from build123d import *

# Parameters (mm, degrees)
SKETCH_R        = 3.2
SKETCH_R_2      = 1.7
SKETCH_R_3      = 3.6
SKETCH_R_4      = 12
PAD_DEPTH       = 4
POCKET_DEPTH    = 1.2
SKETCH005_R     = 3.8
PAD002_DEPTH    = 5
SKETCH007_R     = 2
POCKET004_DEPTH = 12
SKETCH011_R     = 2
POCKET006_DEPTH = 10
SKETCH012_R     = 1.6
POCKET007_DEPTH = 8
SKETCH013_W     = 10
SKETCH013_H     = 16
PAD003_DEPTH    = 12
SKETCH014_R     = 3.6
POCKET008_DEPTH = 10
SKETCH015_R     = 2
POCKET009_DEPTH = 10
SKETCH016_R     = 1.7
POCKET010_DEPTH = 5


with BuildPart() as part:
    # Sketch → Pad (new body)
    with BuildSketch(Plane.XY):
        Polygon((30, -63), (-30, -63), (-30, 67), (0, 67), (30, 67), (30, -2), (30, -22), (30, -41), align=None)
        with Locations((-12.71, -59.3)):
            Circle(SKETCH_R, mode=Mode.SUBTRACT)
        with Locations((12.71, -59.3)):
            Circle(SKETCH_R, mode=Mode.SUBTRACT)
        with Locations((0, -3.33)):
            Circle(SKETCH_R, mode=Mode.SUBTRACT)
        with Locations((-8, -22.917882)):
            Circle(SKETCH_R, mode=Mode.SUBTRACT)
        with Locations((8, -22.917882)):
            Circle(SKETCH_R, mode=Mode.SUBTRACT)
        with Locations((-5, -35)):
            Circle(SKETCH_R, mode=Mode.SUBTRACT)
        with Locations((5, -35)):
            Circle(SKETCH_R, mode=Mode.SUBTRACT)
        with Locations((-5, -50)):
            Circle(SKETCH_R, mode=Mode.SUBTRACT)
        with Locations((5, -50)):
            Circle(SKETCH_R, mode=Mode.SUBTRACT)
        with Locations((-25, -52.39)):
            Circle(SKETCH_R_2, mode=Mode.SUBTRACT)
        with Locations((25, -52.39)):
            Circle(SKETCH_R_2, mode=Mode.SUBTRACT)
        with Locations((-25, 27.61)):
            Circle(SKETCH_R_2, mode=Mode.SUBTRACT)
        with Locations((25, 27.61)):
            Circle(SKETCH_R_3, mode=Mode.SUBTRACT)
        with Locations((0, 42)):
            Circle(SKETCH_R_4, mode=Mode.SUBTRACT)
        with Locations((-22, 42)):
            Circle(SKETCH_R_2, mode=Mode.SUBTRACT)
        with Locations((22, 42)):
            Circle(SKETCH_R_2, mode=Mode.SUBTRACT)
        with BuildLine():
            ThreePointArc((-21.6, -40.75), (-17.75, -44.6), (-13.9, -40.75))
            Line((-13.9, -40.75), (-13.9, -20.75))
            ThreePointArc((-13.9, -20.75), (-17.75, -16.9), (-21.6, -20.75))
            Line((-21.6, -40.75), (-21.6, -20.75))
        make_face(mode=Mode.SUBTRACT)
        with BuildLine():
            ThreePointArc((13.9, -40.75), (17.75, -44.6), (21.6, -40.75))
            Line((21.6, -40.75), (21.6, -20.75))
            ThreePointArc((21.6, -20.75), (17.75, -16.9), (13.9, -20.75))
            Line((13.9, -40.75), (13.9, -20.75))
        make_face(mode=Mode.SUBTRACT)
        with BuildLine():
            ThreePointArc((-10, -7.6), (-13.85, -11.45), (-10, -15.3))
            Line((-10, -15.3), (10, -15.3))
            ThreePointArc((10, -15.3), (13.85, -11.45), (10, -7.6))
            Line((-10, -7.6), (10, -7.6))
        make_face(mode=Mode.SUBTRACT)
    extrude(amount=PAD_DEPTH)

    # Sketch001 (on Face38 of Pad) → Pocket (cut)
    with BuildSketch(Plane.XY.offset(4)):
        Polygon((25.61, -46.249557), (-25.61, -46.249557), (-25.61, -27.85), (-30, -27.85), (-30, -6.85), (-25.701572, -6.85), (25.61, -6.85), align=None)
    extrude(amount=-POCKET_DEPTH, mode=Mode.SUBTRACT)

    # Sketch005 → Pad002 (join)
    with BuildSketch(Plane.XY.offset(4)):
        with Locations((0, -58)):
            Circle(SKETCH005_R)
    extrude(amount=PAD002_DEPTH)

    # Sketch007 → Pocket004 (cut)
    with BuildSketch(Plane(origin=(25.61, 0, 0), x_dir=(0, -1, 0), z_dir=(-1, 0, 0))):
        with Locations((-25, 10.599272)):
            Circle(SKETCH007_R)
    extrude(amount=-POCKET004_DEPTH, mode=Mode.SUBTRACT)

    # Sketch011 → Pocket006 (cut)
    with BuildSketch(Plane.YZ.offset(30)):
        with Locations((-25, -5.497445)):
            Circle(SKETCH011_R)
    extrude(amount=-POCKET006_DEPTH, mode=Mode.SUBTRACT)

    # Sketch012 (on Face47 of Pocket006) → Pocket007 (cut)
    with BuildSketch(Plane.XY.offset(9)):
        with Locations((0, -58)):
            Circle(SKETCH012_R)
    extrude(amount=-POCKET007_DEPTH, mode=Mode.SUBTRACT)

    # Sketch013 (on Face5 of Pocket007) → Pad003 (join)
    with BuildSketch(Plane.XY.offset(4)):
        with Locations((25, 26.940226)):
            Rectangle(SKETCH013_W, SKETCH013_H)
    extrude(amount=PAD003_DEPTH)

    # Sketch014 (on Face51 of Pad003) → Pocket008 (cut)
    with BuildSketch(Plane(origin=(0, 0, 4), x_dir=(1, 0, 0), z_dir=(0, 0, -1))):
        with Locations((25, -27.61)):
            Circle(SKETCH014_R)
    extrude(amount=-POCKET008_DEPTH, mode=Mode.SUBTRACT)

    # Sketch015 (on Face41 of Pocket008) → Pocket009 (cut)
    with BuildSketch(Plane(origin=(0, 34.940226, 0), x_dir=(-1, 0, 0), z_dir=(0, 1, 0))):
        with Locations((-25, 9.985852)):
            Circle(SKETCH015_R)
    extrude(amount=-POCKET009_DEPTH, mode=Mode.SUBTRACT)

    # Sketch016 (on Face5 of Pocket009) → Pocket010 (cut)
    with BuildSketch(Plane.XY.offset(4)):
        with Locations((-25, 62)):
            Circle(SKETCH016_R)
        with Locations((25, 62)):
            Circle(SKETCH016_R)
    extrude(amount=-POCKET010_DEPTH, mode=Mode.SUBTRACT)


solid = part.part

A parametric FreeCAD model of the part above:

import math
import FreeCAD as App
import Part
import Sketcher

doc = App.newDocument("Part")
body = doc.addObject("PartDesign::Body", "Body")

sketch1 = body.newObject("Sketcher::SketchObject", "Sketch")
sketch1.AttachmentSupport = (doc.getObject("XY_Plane"), [""])
sketch1.MapMode = "FlatFace"
sketch1.addGeometry(Part.LineSegment(App.Vector(-30, -63, 0), App.Vector(30, -63, 0)), False)
sketch1.addGeometry(Part.LineSegment(App.Vector(30, -63, 0), App.Vector(30, 67, 0)), False)
sketch1.addGeometry(Part.LineSegment(App.Vector(30, 67, 0), App.Vector(-30, 67, 0)), False)
sketch1.addGeometry(Part.LineSegment(App.Vector(-30, 67, 0), App.Vector(-30, -63, 0)), False)
sketch1.addGeometry(Part.Circle(App.Vector(25, -52.39, 0), App.Vector(0, 0, 1), 1.7), False)
sketch1.addGeometry(Part.Circle(App.Vector(12.71, -59.3, 0), App.Vector(0, 0, 1), 3.2), False)
sketch1.addGeometry(Part.Circle(App.Vector(5, -50, 0), App.Vector(0, 0, 1), 3.2), False)
sketch1.addGeometry(Part.Circle(App.Vector(5, -35, 0), App.Vector(0, 0, 1), 3.2), False)
sketch1.addGeometry(Part.LineSegment(App.Vector(13.9, -40.75, 0), App.Vector(13.9, -20.75, 0)), False)
sketch1.addGeometry(Part.ArcOfCircle(Part.Circle(App.Vector(17.75, -20.75, 0), App.Vector(0, 0, 1), 3.85), math.radians(0), math.radians(180)), False)
sketch1.addGeometry(Part.LineSegment(App.Vector(21.6, -20.75, 0), App.Vector(21.6, -40.75, 0)), False)
sketch1.addGeometry(Part.ArcOfCircle(Part.Circle(App.Vector(17.75, -40.75, 0), App.Vector(0, 0, 1), 3.85), math.radians(180), math.radians(360)), False)
sketch1.addGeometry(Part.Circle(App.Vector(8, -22.917882, 0), App.Vector(0, 0, 1), 3.2), False)
sketch1.addGeometry(Part.Circle(App.Vector(-5, -50, 0), App.Vector(0, 0, 1), 3.2), False)
sketch1.addGeometry(Part.Circle(App.Vector(-12.71, -59.3, 0), App.Vector(0, 0, 1), 3.2), False)
sketch1.addGeometry(Part.Circle(App.Vector(-5, -35, 0), App.Vector(0, 0, 1), 3.2), False)
sketch1.addGeometry(Part.Circle(App.Vector(-25, -52.39, 0), App.Vector(0, 0, 1), 1.7), False)
sketch1.addGeometry(Part.Circle(App.Vector(-8, -22.917882, 0), App.Vector(0, 0, 1), 3.2), False)
sketch1.addGeometry(Part.LineSegment(App.Vector(-10, -7.6, 0), App.Vector(10, -7.6, 0)), False)
sketch1.addGeometry(Part.ArcOfCircle(Part.Circle(App.Vector(10, -11.45, 0), App.Vector(0, 0, 1), 3.85), math.radians(-90), math.radians(90)), False)
sketch1.addGeometry(Part.LineSegment(App.Vector(10, -15.3, 0), App.Vector(-10, -15.3, 0)), False)
sketch1.addGeometry(Part.ArcOfCircle(Part.Circle(App.Vector(-10, -11.45, 0), App.Vector(0, 0, 1), 3.85), math.radians(90), math.radians(270)), False)
sketch1.addGeometry(Part.LineSegment(App.Vector(-21.6, -40.75, 0), App.Vector(-21.6, -20.75, 0)), False)
sketch1.addGeometry(Part.ArcOfCircle(Part.Circle(App.Vector(-17.75, -20.75, 0), App.Vector(0, 0, 1), 3.85), math.radians(0), math.radians(180)), False)
sketch1.addGeometry(Part.LineSegment(App.Vector(-13.9, -20.75, 0), App.Vector(-13.9, -40.75, 0)), False)
sketch1.addGeometry(Part.ArcOfCircle(Part.Circle(App.Vector(-17.75, -40.75, 0), App.Vector(0, 0, 1), 3.85), math.radians(180), math.radians(360)), False)
sketch1.addGeometry(Part.Circle(App.Vector(25, 27.61, 0), App.Vector(0, 0, 1), 3.6), False)
sketch1.addGeometry(Part.Circle(App.Vector(22, 42, 0), App.Vector(0, 0, 1), 1.7), False)
sketch1.addGeometry(Part.Circle(App.Vector(0, -3.33, 0), App.Vector(0, 0, 1), 3.2), False)
sketch1.addGeometry(Part.Circle(App.Vector(0, 42, 0), App.Vector(0, 0, 1), 12), False)
sketch1.addGeometry(Part.Circle(App.Vector(-25, 27.61, 0), App.Vector(0, 0, 1), 1.7), False)
sketch1.addGeometry(Part.Circle(App.Vector(-22, 42, 0), App.Vector(0, 0, 1), 1.7), False)
sketch1.addConstraint(Sketcher.Constraint("Coincident", 0, 2, 1, 1))
sketch1.addConstraint(Sketcher.Constraint("Coincident", 1, 2, 2, 1))
sketch1.addConstraint(Sketcher.Constraint("Coincident", 2, 2, 3, 1))
sketch1.addConstraint(Sketcher.Constraint("Coincident", 3, 2, 0, 1))
sketch1.addConstraint(Sketcher.Constraint("Tangent", 8, 2, 9, 2))
sketch1.addConstraint(Sketcher.Constraint("Tangent", 9, 1, 10, 1))
sketch1.addConstraint(Sketcher.Constraint("Tangent", 10, 2, 11, 2))
sketch1.addConstraint(Sketcher.Constraint("Tangent", 11, 1, 8, 1))
sketch1.addConstraint(Sketcher.Constraint("Tangent", 18, 2, 19, 2))
sketch1.addConstraint(Sketcher.Constraint("Tangent", 19, 1, 20, 1))
sketch1.addConstraint(Sketcher.Constraint("Tangent", 20, 2, 21, 2))
sketch1.addConstraint(Sketcher.Constraint("Tangent", 21, 1, 18, 1))
sketch1.addConstraint(Sketcher.Constraint("Tangent", 22, 2, 23, 2))
sketch1.addConstraint(Sketcher.Constraint("Tangent", 23, 1, 24, 1))
sketch1.addConstraint(Sketcher.Constraint("Tangent", 24, 2, 25, 2))
sketch1.addConstraint(Sketcher.Constraint("Tangent", 25, 1, 22, 1))
sketch1.addConstraint(Sketcher.Constraint("Horizontal", 0))
sketch1.addConstraint(Sketcher.Constraint("Vertical", 1))
sketch1.addConstraint(Sketcher.Constraint("Horizontal", 2))
sketch1.addConstraint(Sketcher.Constraint("Vertical", 3))
sketch1.addConstraint(Sketcher.Constraint("Vertical", 8))
sketch1.addConstraint(Sketcher.Constraint("Vertical", 10))
sketch1.addConstraint(Sketcher.Constraint("Horizontal", 18))
sketch1.addConstraint(Sketcher.Constraint("Horizontal", 20))
sketch1.addConstraint(Sketcher.Constraint("Vertical", 22))
sketch1.addConstraint(Sketcher.Constraint("Vertical", 24))
sketch1.addConstraint(Sketcher.Constraint("Equal", 5, 6))
sketch1.addConstraint(Sketcher.Constraint("Equal", 6, 7))
sketch1.addConstraint(Sketcher.Constraint("Equal", 7, 12))
sketch1.addConstraint(Sketcher.Constraint("Equal", 12, 13))
sketch1.addConstraint(Sketcher.Constraint("Equal", 13, 14))
sketch1.addConstraint(Sketcher.Constraint("Equal", 14, 15))
sketch1.addConstraint(Sketcher.Constraint("Equal", 4, 16))
sketch1.addConstraint(Sketcher.Constraint("Equal", 15, 17))
sketch1.addConstraint(Sketcher.Constraint("Equal", 11, 19))
sketch1.addConstraint(Sketcher.Constraint("Equal", 21, 23))
sketch1.addConstraint(Sketcher.Constraint("Equal", 16, 27))
sketch1.addConstraint(Sketcher.Constraint("Equal", 17, 28))
sketch1.addConstraint(Sketcher.Constraint("Equal", 27, 30))
sketch1.addConstraint(Sketcher.Constraint("Equal", 30, 31))
sketch1.addConstraint(Sketcher.Constraint("Symmetric", 6, 3, 13, 3, -2))
sketch1.addConstraint(Sketcher.Constraint("Symmetric", 5, 3, 14, 3, -2))
sketch1.addConstraint(Sketcher.Constraint("Symmetric", 7, 3, 15, 3, -2))
sketch1.addConstraint(Sketcher.Constraint("Symmetric", 4, 3, 16, 3, -2))
sketch1.addConstraint(Sketcher.Constraint("Symmetric", 12, 3, 17, 3, -2))
sketch1.addConstraint(Sketcher.Constraint("Symmetric", 9, 3, 23, 3, -2))
sketch1.addConstraint(Sketcher.Constraint("Symmetric", 26, 3, 30, 3, -2))
sketch1.addConstraint(Sketcher.Constraint("Symmetric", 27, 3, 31, 3, -2))
sketch1.addConstraint(Sketcher.Constraint("PointOnObject", 28, 3, -2))
sketch1.addConstraint(Sketcher.Constraint("PointOnObject", 29, 3, -2))
sketch1.addConstraint(Sketcher.Constraint("Horizontal", 11, 3, 25, 3))
sketch1.addConstraint(Sketcher.Constraint("Horizontal", 27, 3, 29, 3))
sketch1.addConstraint(Sketcher.Constraint("Vertical", 6, 3, 7, 3))
sketch1.addConstraint(Sketcher.Constraint("Vertical", 4, 3, 26, 3))
sketch1.addConstraint(Sketcher.Constraint("Equal", 20, 8))
sketch1.addConstraint(Sketcher.Constraint("Diameter", 29, 24.0))
sketch1.addConstraint(Sketcher.Constraint("Diameter", 4, 3.4))
sketch1.addConstraint(Sketcher.Constraint("Diameter", 5, 6.4))
sketch1.addConstraint(Sketcher.Constraint("Diameter", 26, 7.2))
sketch1.addConstraint(Sketcher.Constraint("DistanceX", 0, 1, 0, 2, 60.0))
sketch1.addConstraint(Sketcher.Constraint("DistanceX", 18, 1, 18, 2, 20.0))
sketch1.addConstraint(Sketcher.Constraint("DistanceY", 1, 1, 1, 2, 130.0))
sketch1.addConstraint(Sketcher.Constraint("Radius", 9, 3.85))
sketch1.addConstraint(Sketcher.Constraint("DistanceX", -1, 1, 4, 3, 25.0))
sketch1.addConstraint(Sketcher.Constraint("DistanceX", -1, 1, 6, 3, 5.0))
sketch1.addConstraint(Sketcher.Constraint("DistanceY", 6, 3, -1, 1, 50.0))
sketch1.addConstraint(Sketcher.Constraint("DistanceY", 7, 3, -1, 1, 35.0))
sketch1.addConstraint(Sketcher.Constraint("DistanceX", -1, 1, 12, 3, 8.0))
sketch1.addConstraint(Sketcher.Constraint("DistanceX", -1, 1, 19, 3, 10.0))
sketch1.addConstraint(Sketcher.Constraint("DistanceX", -1, 1, 27, 3, 22.0))
sketch1.addConstraint(Sketcher.Constraint("DistanceY", -1, 1, 27, 3, 42.0))
sketch1.addConstraint(Sketcher.Constraint("DistanceX", -1, 1, 0, 2, 30.0))
sketch1.addConstraint(Sketcher.Constraint("DistanceY", 0, 2, -1, 1, 63.0))
sketch1.addConstraint(Sketcher.Constraint("DistanceY", 5, 3, -1, 1, 59.3))
sketch1.addConstraint(Sketcher.Constraint("DistanceX", -1, 1, 8, 2, 13.9))
sketch1.addConstraint(Sketcher.Constraint("DistanceY", 18, 2, -1, 1, 7.6))
sketch1.addConstraint(Sketcher.Constraint("DistanceY", 9, 3, 19, 3, 9.3))
sketch1.addConstraint(Sketcher.Constraint("DistanceY", 4, 3, -1, 1, 52.39))
sketch1.addConstraint(Sketcher.Constraint("DistanceX", -1, 1, 5, 3, 12.71))
sketch1.addConstraint(Sketcher.Constraint("DistanceY", -1, 1, 26, 3, 27.61))
sketch1.addConstraint(Sketcher.Constraint("DistanceY", 28, 3, -1, 1, 3.33))
sketch1.addConstraint(Sketcher.Constraint("DistanceY", 12, 3, -1, 1, 22.917882))
pad1 = body.newObject("PartDesign::Pad", "Pad")
pad1.Profile = sketch1
pad1.Length = 4

sketch2 = body.newObject("Sketcher::SketchObject", "Sketch001")
sketch2.AttachmentSupport = (doc.getObject("XY_Plane"), [""])
sketch2.MapMode = "FlatFace"
sketch2.AttachmentOffset = App.Placement(App.Vector(0, 0, 4), App.Rotation())
sketch2.addGeometry(Part.LineSegment(App.Vector(-25.61, -46.249557, 0), App.Vector(25.61, -46.249557, 0)), False)
sketch2.addGeometry(Part.LineSegment(App.Vector(25.61, -46.249557, 0), App.Vector(25.61, -6.85, 0)), False)
sketch2.addGeometry(Part.LineSegment(App.Vector(25.61, -6.85, 0), App.Vector(-30, -6.85, 0)), False)
sketch2.addGeometry(Part.LineSegment(App.Vector(-30, -6.85, 0), App.Vector(-30, -27.85, 0)), False)
sketch2.addGeometry(Part.LineSegment(App.Vector(-30, -27.85, 0), App.Vector(-25.61, -27.85, 0)), False)
sketch2.addGeometry(Part.LineSegment(App.Vector(-25.61, -27.85, 0), App.Vector(-25.61, -46.249557, 0)), False)
sketch2.addConstraint(Sketcher.Constraint("Coincident", 0, 2, 1, 1))
sketch2.addConstraint(Sketcher.Constraint("Coincident", 1, 2, 2, 1))
sketch2.addConstraint(Sketcher.Constraint("Coincident", 2, 2, 3, 1))
sketch2.addConstraint(Sketcher.Constraint("Coincident", 3, 2, 4, 1))
sketch2.addConstraint(Sketcher.Constraint("Coincident", 4, 2, 5, 1))
sketch2.addConstraint(Sketcher.Constraint("Coincident", 5, 2, 0, 1))
sketch2.addConstraint(Sketcher.Constraint("Horizontal", 0))
sketch2.addConstraint(Sketcher.Constraint("Vertical", 1))
sketch2.addConstraint(Sketcher.Constraint("Horizontal", 2))
sketch2.addConstraint(Sketcher.Constraint("Vertical", 3))
sketch2.addConstraint(Sketcher.Constraint("Horizontal", 4))
sketch2.addConstraint(Sketcher.Constraint("Vertical", 5))
sketch2.addConstraint(Sketcher.Constraint("DistanceY", 3, 2, 3, 1, 21.0))
sketch2.addConstraint(Sketcher.Constraint("DistanceX", 2, 2, -1, 1, 30.0))
sketch2.addConstraint(Sketcher.Constraint("DistanceX", 0, 1, 0, 2, 51.22))
sketch2.addConstraint(Sketcher.Constraint("DistanceX", 2, 2, 2, 1, 55.61))
sketch2.addConstraint(Sketcher.Constraint("DistanceY", 1, 2, -1, 1, 6.85))
sketch2.addConstraint(Sketcher.Constraint("DistanceY", 1, 1, 1, 2, 39.399557))
pocket1 = body.newObject("PartDesign::Pocket", "Pocket")
pocket1.Profile = sketch2
pocket1.Length = 1.2

sketch3 = body.newObject("Sketcher::SketchObject", "Sketch002")
sketch3.AttachmentSupport = (doc.getObject("XY_Plane"), [""])
sketch3.MapMode = "FlatFace"
sketch3.AttachmentOffset = App.Placement(App.Vector(0, 0, 4), App.Rotation())
sketch3.addGeometry(Part.Circle(App.Vector(0, -58, 0), App.Vector(0, 0, 1), 3.8), False)
sketch3.addConstraint(Sketcher.Constraint("PointOnObject", 0, 3, -2))
sketch3.addConstraint(Sketcher.Constraint("Diameter", 0, 7.6))
sketch3.addConstraint(Sketcher.Constraint("DistanceY", 0, 3, -1, 1, 58.0))
pad2 = body.newObject("PartDesign::Pad", "Pad001")
pad2.Profile = sketch3
pad2.Length = 5

sketch4 = body.newObject("Sketcher::SketchObject", "Sketch003")
sketch4.AttachmentSupport = (doc.getObject("YZ_Plane"), [""])
sketch4.MapMode = "FlatFace"
sketch4.AttachmentOffset = App.Placement(App.Vector(0, 0, 25.61), App.Rotation())
sketch4.addGeometry(Part.Circle(App.Vector(25, 10.599272, 0), App.Vector(0, 0, 1), 2), False)
sketch4.addConstraint(Sketcher.Constraint("Diameter", 0, 4.0))
sketch4.addConstraint(Sketcher.Constraint("DistanceX", -1, 1, 0, 3, 25.0))
sketch4.addConstraint(Sketcher.Constraint("DistanceY", -1, 1, 0, 3, 10.599272))
pocket2 = body.newObject("PartDesign::Pocket", "Pocket001")
pocket2.Profile = sketch4
pocket2.Length = 12
pocket2.Reversed = True

sketch5 = body.newObject("Sketcher::SketchObject", "Sketch004")
sketch5.AttachmentSupport = (doc.getObject("YZ_Plane"), [""])
sketch5.MapMode = "FlatFace"
sketch5.AttachmentOffset = App.Placement(App.Vector(0, 0, 30), App.Rotation())
sketch5.addGeometry(Part.Circle(App.Vector(-25, -5.497445, 0), App.Vector(0, 0, 1), 2), False)
sketch5.addConstraint(Sketcher.Constraint("Diameter", 0, 4.0))
sketch5.addConstraint(Sketcher.Constraint("DistanceX", 0, 3, -1, 1, 25.0))
sketch5.addConstraint(Sketcher.Constraint("DistanceY", 0, 3, -1, 1, 5.497445))
pocket3 = body.newObject("PartDesign::Pocket", "Pocket002")
pocket3.Profile = sketch5
pocket3.Length = 10

sketch6 = body.newObject("Sketcher::SketchObject", "Sketch005")
sketch6.AttachmentSupport = (doc.getObject("XY_Plane"), [""])
sketch6.MapMode = "FlatFace"
sketch6.AttachmentOffset = App.Placement(App.Vector(0, 0, 9), App.Rotation())
sketch6.addGeometry(Part.Circle(App.Vector(0, -58, 0), App.Vector(0, 0, 1), 1.6), False)
sketch6.addConstraint(Sketcher.Constraint("PointOnObject", 0, 3, -2))
sketch6.addConstraint(Sketcher.Constraint("Diameter", 0, 3.2))
sketch6.addConstraint(Sketcher.Constraint("DistanceY", 0, 3, -1, 1, 58.0))
pocket4 = body.newObject("PartDesign::Pocket", "Pocket003")
pocket4.Profile = sketch6
pocket4.Length = 8

sketch7 = body.newObject("Sketcher::SketchObject", "Sketch006")
sketch7.AttachmentSupport = (doc.getObject("XY_Plane"), [""])
sketch7.MapMode = "FlatFace"
sketch7.AttachmentOffset = App.Placement(App.Vector(0, 0, 4), App.Rotation())
sketch7.addGeometry(Part.LineSegment(App.Vector(20, 34.940226, 0), App.Vector(20, 18.940226, 0)), False)
sketch7.addGeometry(Part.LineSegment(App.Vector(20, 18.940226, 0), App.Vector(30, 18.940226, 0)), False)
sketch7.addGeometry(Part.LineSegment(App.Vector(30, 18.940226, 0), App.Vector(30, 34.940226, 0)), False)
sketch7.addGeometry(Part.LineSegment(App.Vector(30, 34.940226, 0), App.Vector(20, 34.940226, 0)), False)
sketch7.addConstraint(Sketcher.Constraint("Coincident", 0, 2, 1, 1))
sketch7.addConstraint(Sketcher.Constraint("Coincident", 1, 2, 2, 1))
sketch7.addConstraint(Sketcher.Constraint("Coincident", 2, 2, 3, 1))
sketch7.addConstraint(Sketcher.Constraint("Coincident", 3, 2, 0, 1))
sketch7.addConstraint(Sketcher.Constraint("Vertical", 0))
sketch7.addConstraint(Sketcher.Constraint("Horizontal", 1))
sketch7.addConstraint(Sketcher.Constraint("Vertical", 2))
sketch7.addConstraint(Sketcher.Constraint("Horizontal", 3))
sketch7.addConstraint(Sketcher.Constraint("DistanceX", 1, 1, 1, 2, 10.0))
sketch7.addConstraint(Sketcher.Constraint("DistanceY", 0, 2, 0, 1, 16.0))
sketch7.addConstraint(Sketcher.Constraint("DistanceX", -1, 1, 0, 2, 20.0))
sketch7.addConstraint(Sketcher.Constraint("DistanceY", -1, 1, 0, 2, 18.940226))
pad3 = body.newObject("PartDesign::Pad", "Pad002")
pad3.Profile = sketch7
pad3.Length = 12

sketch8 = body.newObject("Sketcher::SketchObject", "Sketch007")
sketch8.AttachmentSupport = (doc.getObject("XY_Plane"), [""])
sketch8.MapMode = "FlatFace"
sketch8.AttachmentOffset = App.Placement(App.Vector(0, 0, 4), App.Rotation())
sketch8.addGeometry(Part.Circle(App.Vector(25, 27.61, 0), App.Vector(0, 0, 1), 3.6), False)
sketch8.addConstraint(Sketcher.Constraint("Diameter", 0, 7.2))
sketch8.addConstraint(Sketcher.Constraint("DistanceX", -1, 1, 0, 3, 25.0))
sketch8.addConstraint(Sketcher.Constraint("DistanceY", -1, 1, 0, 3, 27.61))
pocket5 = body.newObject("PartDesign::Pocket", "Pocket004")
pocket5.Profile = sketch8
pocket5.Length = 10
pocket5.Reversed = True

sketch9 = body.newObject("Sketcher::SketchObject", "Sketch008")
sketch9.AttachmentSupport = (doc.getObject("XZ_Plane"), [""])
sketch9.MapMode = "FlatFace"
sketch9.AttachmentOffset = App.Placement(App.Vector(0, 0, -34.940226), App.Rotation())
sketch9.addGeometry(Part.Circle(App.Vector(25, 9.985852, 0), App.Vector(0, 0, 1), 2), False)
sketch9.addConstraint(Sketcher.Constraint("Diameter", 0, 4.0))
sketch9.addConstraint(Sketcher.Constraint("DistanceX", -1, 1, 0, 3, 25.0))
sketch9.addConstraint(Sketcher.Constraint("DistanceY", -1, 1, 0, 3, 9.985852))
pocket6 = body.newObject("PartDesign::Pocket", "Pocket005")
pocket6.Profile = sketch9
pocket6.Length = 10
pocket6.Reversed = True

sketch10 = body.newObject("Sketcher::SketchObject", "Sketch009")
sketch10.AttachmentSupport = (doc.getObject("XY_Plane"), [""])
sketch10.MapMode = "FlatFace"
sketch10.AttachmentOffset = App.Placement(App.Vector(0, 0, 4), App.Rotation())
sketch10.addGeometry(Part.Circle(App.Vector(-25, 62, 0), App.Vector(0, 0, 1), 1.7), False)
sketch10.addGeometry(Part.Circle(App.Vector(25, 62, 0), App.Vector(0, 0, 1), 1.7), False)
sketch10.addConstraint(Sketcher.Constraint("Equal", 0, 1))
sketch10.addConstraint(Sketcher.Constraint("Symmetric", 0, 3, 1, 3, -2))
sketch10.addConstraint(Sketcher.Constraint("Diameter", 0, 3.4))
sketch10.addConstraint(Sketcher.Constraint("DistanceX", 0, 3, -1, 1, 25.0))
sketch10.addConstraint(Sketcher.Constraint("DistanceY", -1, 1, 0, 3, 62.0))
pocket7 = body.newObject("PartDesign::Pocket", "Pocket006")
pocket7.Profile = sketch10
pocket7.Length = 5

doc.recompute()
